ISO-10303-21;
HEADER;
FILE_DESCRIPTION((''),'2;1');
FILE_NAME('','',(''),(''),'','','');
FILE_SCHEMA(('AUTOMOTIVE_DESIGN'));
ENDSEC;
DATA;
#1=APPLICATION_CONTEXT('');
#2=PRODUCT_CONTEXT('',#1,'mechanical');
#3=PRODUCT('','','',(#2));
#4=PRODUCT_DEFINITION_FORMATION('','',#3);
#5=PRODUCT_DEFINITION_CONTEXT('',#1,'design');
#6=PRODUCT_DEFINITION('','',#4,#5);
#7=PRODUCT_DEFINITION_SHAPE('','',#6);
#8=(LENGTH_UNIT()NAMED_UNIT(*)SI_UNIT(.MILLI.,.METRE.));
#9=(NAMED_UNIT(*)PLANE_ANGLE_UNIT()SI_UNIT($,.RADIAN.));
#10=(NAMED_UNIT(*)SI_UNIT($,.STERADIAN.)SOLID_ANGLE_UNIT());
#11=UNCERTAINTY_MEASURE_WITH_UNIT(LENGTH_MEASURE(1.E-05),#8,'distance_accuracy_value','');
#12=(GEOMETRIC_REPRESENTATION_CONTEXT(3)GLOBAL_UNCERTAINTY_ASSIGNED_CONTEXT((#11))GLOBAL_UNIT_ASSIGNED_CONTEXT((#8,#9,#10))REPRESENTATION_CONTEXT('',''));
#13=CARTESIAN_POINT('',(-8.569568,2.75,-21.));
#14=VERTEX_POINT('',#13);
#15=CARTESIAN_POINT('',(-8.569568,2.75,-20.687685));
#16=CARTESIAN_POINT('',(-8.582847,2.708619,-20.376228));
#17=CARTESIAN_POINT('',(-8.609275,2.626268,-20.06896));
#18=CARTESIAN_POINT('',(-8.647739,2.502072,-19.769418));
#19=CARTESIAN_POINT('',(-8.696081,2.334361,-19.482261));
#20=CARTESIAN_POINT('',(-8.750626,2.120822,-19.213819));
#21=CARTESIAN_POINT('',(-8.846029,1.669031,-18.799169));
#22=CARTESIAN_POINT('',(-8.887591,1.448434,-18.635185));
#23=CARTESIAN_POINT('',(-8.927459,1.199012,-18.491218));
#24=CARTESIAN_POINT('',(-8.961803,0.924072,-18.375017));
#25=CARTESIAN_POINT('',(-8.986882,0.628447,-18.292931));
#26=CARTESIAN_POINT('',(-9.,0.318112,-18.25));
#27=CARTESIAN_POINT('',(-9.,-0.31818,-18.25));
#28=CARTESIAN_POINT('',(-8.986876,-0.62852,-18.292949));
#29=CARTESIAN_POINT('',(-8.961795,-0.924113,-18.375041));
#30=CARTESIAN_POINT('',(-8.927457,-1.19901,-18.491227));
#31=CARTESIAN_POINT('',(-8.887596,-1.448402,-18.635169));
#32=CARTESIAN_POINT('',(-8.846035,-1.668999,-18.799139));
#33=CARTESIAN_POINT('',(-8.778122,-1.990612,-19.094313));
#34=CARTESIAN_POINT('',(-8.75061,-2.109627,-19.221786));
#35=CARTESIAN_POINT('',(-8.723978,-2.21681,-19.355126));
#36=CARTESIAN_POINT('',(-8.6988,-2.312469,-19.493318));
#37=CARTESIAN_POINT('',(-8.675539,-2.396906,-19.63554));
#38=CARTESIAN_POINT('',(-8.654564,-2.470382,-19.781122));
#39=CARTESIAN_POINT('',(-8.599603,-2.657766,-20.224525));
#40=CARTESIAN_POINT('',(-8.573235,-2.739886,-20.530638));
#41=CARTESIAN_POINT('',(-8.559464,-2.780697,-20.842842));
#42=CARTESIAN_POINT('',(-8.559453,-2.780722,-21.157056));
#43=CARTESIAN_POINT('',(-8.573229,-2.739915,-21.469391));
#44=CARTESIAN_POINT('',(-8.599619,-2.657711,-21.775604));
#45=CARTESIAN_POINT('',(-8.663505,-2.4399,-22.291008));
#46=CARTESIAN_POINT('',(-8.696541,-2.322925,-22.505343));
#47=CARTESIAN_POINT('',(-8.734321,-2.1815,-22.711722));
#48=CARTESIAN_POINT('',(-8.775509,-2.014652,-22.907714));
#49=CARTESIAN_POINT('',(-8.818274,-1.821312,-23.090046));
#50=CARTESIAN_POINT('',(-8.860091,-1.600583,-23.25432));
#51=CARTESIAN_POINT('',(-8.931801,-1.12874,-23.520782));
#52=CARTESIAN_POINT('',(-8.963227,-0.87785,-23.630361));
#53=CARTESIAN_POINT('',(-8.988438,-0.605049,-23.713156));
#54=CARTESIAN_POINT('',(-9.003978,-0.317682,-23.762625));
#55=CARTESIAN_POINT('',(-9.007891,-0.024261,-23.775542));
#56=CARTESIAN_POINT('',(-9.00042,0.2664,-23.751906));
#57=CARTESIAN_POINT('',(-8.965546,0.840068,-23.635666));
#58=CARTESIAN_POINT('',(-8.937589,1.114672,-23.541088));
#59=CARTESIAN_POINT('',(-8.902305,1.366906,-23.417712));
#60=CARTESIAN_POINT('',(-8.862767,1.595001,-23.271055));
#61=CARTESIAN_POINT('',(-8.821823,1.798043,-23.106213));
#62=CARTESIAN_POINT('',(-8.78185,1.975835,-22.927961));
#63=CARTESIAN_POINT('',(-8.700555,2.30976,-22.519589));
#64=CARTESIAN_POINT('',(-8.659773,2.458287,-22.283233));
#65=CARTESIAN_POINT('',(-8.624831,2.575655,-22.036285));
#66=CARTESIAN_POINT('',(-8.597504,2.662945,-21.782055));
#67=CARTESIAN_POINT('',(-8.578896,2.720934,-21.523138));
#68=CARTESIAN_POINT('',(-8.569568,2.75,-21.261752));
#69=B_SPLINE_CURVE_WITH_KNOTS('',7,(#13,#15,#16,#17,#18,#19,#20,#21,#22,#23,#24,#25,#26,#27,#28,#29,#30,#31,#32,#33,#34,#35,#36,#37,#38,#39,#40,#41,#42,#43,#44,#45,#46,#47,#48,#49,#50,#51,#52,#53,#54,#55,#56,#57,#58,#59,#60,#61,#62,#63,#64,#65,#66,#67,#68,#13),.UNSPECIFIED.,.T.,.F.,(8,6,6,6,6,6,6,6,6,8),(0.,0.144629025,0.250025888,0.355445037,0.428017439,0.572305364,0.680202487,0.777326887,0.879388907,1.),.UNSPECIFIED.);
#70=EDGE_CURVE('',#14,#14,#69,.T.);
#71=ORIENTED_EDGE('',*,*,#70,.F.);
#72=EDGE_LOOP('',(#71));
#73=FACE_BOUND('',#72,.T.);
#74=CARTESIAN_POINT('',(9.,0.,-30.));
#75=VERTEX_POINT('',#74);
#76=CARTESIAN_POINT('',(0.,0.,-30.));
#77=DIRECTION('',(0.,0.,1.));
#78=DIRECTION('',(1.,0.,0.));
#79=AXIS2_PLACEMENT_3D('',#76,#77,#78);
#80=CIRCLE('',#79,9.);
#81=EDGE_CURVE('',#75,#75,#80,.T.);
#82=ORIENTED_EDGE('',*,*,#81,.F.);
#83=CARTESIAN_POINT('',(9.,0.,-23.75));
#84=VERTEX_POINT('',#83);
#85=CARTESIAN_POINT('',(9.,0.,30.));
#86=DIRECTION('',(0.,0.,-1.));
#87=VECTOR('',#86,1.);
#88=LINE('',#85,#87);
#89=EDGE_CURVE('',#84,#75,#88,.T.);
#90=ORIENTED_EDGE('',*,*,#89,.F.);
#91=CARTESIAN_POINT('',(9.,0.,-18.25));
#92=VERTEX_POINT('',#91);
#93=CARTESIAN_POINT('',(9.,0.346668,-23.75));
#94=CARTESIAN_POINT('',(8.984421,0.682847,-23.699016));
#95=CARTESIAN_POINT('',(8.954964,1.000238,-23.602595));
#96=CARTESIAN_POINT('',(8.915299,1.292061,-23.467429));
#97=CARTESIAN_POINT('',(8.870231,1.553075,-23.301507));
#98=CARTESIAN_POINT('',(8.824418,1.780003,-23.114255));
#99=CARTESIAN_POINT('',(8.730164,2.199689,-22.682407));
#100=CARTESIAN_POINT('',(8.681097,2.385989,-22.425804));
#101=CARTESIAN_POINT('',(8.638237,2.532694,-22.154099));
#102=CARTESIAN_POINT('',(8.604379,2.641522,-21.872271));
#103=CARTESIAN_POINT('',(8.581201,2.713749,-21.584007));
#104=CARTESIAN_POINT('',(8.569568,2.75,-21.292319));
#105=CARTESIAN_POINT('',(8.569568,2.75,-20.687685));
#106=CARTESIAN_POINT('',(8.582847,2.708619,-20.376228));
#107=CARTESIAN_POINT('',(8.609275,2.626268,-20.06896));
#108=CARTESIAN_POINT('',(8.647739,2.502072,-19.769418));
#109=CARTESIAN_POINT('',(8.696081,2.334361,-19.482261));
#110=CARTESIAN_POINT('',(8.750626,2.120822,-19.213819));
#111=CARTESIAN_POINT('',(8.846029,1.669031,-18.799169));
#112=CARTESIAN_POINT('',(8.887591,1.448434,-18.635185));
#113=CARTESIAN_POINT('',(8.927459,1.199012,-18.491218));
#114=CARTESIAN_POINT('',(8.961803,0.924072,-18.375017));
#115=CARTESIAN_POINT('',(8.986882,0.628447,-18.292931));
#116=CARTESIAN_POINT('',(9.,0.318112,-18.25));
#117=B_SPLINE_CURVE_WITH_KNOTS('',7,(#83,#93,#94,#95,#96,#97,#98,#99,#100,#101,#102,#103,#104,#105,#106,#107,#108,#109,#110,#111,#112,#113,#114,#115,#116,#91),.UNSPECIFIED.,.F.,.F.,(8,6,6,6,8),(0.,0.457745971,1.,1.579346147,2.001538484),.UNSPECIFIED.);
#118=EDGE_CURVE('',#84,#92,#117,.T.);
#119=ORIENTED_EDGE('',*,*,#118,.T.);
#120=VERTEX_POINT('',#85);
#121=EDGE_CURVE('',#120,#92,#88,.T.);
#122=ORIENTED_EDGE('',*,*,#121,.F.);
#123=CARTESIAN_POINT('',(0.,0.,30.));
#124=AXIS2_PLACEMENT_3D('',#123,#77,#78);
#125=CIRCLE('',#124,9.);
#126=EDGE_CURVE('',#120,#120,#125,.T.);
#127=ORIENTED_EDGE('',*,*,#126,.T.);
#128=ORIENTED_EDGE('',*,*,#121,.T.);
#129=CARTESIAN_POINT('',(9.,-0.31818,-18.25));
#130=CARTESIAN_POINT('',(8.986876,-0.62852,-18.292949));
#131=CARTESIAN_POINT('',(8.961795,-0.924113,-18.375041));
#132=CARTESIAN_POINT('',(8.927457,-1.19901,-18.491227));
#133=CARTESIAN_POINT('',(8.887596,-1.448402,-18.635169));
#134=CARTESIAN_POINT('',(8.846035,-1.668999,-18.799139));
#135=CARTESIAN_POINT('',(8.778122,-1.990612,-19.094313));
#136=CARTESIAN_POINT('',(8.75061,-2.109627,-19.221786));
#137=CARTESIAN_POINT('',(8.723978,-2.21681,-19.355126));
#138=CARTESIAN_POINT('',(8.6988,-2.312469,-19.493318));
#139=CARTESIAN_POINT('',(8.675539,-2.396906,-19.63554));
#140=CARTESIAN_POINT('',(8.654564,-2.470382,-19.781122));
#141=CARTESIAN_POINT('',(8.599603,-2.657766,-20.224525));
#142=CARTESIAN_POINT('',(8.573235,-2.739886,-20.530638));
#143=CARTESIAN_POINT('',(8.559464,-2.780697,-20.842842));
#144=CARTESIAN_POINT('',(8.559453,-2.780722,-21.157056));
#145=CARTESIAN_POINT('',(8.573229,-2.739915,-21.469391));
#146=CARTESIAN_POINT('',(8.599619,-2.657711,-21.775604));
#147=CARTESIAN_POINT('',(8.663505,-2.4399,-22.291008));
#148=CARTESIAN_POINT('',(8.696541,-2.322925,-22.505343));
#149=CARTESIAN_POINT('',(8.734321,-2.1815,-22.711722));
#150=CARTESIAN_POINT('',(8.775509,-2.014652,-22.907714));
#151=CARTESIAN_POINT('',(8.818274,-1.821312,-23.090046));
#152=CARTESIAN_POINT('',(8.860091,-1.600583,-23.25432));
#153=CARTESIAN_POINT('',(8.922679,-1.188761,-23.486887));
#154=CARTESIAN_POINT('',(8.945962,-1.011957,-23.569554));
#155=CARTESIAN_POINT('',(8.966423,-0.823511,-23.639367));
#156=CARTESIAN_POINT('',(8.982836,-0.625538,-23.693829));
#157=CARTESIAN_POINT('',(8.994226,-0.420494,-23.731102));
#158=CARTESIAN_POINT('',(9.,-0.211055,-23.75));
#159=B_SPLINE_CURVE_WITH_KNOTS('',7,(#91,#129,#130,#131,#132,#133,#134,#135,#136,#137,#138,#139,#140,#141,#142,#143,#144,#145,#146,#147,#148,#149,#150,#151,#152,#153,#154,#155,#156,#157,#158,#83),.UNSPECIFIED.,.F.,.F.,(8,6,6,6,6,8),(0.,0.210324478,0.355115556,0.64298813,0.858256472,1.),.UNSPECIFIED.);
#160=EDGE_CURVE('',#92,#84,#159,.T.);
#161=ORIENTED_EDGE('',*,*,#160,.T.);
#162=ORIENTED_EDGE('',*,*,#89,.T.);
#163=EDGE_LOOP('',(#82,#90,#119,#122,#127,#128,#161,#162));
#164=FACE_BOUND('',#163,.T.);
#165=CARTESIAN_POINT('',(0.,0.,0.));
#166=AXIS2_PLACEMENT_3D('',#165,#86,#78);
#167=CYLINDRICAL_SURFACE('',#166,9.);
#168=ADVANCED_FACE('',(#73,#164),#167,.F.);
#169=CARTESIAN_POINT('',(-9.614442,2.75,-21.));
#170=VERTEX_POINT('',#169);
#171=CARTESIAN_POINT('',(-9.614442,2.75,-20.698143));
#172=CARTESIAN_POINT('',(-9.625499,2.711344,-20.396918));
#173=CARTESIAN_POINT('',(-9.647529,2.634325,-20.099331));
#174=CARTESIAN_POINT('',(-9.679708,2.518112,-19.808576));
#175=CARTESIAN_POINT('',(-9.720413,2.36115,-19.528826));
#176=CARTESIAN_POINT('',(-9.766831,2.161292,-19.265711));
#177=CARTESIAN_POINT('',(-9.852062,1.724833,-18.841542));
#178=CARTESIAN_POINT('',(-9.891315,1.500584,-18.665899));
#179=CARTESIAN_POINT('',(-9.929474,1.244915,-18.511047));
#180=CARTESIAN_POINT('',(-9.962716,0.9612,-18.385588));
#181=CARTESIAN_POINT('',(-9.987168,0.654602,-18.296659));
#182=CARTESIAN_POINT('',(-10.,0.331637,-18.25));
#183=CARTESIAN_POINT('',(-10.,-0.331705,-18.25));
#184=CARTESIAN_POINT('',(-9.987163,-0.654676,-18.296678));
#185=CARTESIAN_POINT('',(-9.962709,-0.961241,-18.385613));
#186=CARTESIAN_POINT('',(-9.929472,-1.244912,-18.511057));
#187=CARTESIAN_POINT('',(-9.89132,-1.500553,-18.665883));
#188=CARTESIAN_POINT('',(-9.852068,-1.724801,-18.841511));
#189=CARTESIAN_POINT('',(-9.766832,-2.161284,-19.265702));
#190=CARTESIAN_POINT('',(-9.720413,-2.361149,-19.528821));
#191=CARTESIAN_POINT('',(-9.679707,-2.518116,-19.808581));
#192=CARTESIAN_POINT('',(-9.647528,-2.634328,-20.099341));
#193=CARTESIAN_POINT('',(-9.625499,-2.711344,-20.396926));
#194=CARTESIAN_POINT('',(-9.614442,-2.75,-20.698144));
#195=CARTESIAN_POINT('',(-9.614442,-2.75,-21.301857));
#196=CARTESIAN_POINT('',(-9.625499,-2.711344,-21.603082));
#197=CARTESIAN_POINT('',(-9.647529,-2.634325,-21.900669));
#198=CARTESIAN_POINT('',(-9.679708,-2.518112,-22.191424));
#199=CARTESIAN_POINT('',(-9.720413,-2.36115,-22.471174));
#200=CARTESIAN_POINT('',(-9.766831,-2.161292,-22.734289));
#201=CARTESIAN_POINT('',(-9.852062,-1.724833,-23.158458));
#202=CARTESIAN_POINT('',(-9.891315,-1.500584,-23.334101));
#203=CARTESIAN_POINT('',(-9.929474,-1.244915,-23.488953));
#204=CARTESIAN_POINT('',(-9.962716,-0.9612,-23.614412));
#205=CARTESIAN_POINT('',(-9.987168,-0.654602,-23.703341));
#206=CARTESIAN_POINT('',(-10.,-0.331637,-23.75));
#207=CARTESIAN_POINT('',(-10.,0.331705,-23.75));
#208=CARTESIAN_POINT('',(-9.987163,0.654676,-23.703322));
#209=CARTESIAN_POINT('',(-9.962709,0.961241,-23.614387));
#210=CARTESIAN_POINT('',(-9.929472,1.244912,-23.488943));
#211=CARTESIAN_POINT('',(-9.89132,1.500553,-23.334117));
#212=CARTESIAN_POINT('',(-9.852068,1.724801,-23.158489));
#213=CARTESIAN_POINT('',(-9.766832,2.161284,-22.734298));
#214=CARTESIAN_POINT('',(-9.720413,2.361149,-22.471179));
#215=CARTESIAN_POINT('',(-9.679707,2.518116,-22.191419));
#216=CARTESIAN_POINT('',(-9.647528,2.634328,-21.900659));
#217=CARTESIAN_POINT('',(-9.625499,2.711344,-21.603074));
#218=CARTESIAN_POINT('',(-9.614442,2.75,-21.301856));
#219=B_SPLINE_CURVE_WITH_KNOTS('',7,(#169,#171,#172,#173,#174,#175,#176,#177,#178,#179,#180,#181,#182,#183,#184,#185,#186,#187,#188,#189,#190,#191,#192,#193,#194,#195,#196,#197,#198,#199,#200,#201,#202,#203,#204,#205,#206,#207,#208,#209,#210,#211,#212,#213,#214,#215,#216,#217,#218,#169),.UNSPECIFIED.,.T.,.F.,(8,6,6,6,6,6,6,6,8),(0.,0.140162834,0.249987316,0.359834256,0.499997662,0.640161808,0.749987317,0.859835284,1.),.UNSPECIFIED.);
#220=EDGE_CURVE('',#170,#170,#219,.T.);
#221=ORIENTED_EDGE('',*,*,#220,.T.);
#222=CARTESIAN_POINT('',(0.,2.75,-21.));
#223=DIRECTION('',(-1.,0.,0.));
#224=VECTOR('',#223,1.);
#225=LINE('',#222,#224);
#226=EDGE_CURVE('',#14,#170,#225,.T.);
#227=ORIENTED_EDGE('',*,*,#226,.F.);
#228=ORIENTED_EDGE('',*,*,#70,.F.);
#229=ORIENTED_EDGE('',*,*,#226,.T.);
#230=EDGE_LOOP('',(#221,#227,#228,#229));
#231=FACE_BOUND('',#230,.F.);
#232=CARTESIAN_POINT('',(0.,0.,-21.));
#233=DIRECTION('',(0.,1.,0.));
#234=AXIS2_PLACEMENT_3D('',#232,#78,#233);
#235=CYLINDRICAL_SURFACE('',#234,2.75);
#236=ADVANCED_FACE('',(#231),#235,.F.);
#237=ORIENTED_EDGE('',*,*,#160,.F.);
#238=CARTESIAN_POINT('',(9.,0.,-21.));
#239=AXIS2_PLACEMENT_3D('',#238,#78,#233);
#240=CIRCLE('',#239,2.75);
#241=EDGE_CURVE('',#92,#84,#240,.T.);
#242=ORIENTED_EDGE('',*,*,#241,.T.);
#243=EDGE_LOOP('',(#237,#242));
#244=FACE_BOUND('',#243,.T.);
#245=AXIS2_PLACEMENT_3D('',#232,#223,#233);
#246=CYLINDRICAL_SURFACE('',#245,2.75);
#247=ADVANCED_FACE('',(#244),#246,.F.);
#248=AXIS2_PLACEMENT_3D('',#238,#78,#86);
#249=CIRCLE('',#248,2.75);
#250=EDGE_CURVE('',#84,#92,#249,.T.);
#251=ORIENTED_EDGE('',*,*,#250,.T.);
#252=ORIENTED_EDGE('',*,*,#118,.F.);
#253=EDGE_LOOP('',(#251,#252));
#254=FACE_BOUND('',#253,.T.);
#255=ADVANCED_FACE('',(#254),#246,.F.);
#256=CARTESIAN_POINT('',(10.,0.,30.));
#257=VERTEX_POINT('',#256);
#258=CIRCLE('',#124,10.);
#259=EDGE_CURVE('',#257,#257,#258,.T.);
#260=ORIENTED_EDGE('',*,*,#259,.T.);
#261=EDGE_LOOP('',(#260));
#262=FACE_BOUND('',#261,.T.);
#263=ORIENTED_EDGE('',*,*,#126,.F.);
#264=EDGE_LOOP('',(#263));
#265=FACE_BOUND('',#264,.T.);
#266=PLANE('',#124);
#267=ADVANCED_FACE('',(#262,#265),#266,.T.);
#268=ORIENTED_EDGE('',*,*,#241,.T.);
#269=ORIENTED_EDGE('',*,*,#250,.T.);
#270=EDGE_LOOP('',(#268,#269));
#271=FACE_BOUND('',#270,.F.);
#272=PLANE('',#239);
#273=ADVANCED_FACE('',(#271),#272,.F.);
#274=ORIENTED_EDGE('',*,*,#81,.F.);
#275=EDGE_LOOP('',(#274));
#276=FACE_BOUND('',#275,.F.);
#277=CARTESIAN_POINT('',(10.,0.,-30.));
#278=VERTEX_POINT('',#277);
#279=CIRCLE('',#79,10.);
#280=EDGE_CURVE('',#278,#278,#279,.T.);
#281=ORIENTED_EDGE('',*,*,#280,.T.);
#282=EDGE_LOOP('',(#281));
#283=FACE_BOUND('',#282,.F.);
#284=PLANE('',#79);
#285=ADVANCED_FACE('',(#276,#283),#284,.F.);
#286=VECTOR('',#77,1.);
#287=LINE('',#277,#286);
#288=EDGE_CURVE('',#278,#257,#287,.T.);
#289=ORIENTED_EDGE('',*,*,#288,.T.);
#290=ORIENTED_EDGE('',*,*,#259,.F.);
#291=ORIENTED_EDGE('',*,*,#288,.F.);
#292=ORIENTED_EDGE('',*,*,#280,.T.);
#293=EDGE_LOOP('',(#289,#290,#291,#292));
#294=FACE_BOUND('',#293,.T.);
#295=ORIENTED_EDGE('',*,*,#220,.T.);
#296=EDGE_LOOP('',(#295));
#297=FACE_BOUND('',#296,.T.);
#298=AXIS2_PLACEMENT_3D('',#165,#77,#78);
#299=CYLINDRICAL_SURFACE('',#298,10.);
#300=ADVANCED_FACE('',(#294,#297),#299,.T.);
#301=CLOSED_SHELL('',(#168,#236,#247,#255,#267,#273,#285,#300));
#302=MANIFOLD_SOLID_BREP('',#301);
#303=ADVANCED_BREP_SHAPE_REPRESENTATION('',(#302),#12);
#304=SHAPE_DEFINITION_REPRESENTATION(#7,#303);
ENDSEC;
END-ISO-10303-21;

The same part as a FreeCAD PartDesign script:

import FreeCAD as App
import Part
import Sketcher
from FreeCAD import Vector
Q = App.Units.Quantity

doc = App.newDocument("Part")
body = doc.addObject("PartDesign::Body", "Body")

sketch1 = body.newObject("Sketcher::SketchObject", "Sketch")
sketch1.AttachmentSupport = (doc.getObject("XY_Plane"), [""])
sketch1.MapMode = "FlatFace"
sketch1.addGeometry([
    Part.Circle(Vector(0, 0, 0), Vector(0, 0, 1), 10),
    Part.Circle(Vector(0, 0, 0), Vector(0, 0, 1), 9),
], False)
sketch1.addConstraint([
    Sketcher.Constraint("Coincident", 0, 3, -1, 1),
    Sketcher.Constraint("Coincident", 1, 3, -1, 1),
    Sketcher.Constraint("Diameter", 0, Q("20 mm")),
    Sketcher.Constraint("Diameter", 1, Q("18 mm")),
])
pad1 = body.newObject("PartDesign::Pad", "Pad")
pad1.Profile = sketch1
pad1.Length = 60
pad1.Midplane = True

sketch2 = body.newObject("Sketcher::SketchObject", "Sketch001")
sketch2.AttachmentSupport = (doc.getObject("YZ_Plane"), [""])
sketch2.MapMode = "FlatFace"
sketch2.addGeometry(Part.Circle(Vector(0, -21, 0), Vector(0, 0, 1), 2.8), False)
sketch2.addConstraint([
    Sketcher.Constraint("PointOnObject", 0, 3, -2),
    Sketcher.Constraint("Diameter", 0, Q("5.5 mm")),
    Sketcher.Constraint("DistanceY", 0, 3, -1, 1, Q("21 mm")),
])
pocket1 = body.newObject("PartDesign::Pocket", "Pocket")
pocket1.Profile = sketch2
pocket1.Type = "TwoLengths"
pocket1.Length = 25
pocket1.Length2 = 9

doc.recompute()
